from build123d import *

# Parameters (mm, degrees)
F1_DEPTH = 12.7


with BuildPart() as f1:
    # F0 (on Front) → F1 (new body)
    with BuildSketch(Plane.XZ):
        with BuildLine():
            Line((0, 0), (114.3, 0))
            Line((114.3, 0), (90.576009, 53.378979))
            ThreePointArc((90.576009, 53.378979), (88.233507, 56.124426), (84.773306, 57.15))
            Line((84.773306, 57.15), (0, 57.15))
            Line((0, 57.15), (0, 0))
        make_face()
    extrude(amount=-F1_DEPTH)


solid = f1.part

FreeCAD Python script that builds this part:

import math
import FreeCAD as App
import Part
import Sketcher

V = App.Vector
Q = App.Units.Quantity

doc = App.newDocument("Part")
body = doc.addObject("PartDesign::Body", "Body")

sketch1 = body.newObject("Sketcher::SketchObject", "Sketch")
sketch1.AttachmentSupport = (doc.getObject("XZ_Plane"), [""])
sketch1.MapMode = "FlatFace"
sketch1.addGeometry([
    Part.LineSegment(V(0, 0, 0), V(114.3, 0, 0)),
    Part.LineSegment(V(114.3, 0, 0), V(90.576009, 53.378979, 0)),
    Part.ArcOfCircle(Part.Circle(V(84.773307, 50.800003, 0), V(0, 0, 1), 6.349997), math.radians(23.962471), math.radians(90.000011)),
    Part.LineSegment(V(84.773306, 57.15, 0), V(0, 57.15, 0)),
    Part.LineSegment(V(0, 57.15, 0), V(0, 0, 0)),
], False)
sketch1.addConstraint([
    Sketcher.Constraint("Coincident", 0, 2, 1, 1),
    Sketcher.Constraint("Tangent", 1, 2, 2, 1),
    Sketcher.Constraint("Tangent", 2, 2, 3, 1),
    Sketcher.Constraint("Coincident", 3, 2, 4, 1),
    Sketcher.Constraint("Coincident", 4, 2, 0, 1),
    Sketcher.Constraint("Horizontal", 0),
    Sketcher.Constraint("Horizontal", 3),
    Sketcher.Constraint("Vertical", 4),
    Sketcher.Constraint("Coincident", 4, 2, -1, 1),
    Sketcher.Constraint("Radius", 2, Q("0.2499999 in")),
    Sketcher.Constraint("DistanceX", 0, 1, 0, 2, Q("4.5 in")),
    Sketcher.Constraint("DistanceY", -1, 1, 2, 3, Q("2.0000001 in")),
    Sketcher.Constraint("DistanceX", 2, 3, 1, 2, Q("5.802702 mm")),
])
pad1 = body.newObject("PartDesign::Pad", "Pad")
pad1.Profile = sketch1
pad1.Length = Q("0.5 in")
pad1.Reversed = True

doc.recompute()
